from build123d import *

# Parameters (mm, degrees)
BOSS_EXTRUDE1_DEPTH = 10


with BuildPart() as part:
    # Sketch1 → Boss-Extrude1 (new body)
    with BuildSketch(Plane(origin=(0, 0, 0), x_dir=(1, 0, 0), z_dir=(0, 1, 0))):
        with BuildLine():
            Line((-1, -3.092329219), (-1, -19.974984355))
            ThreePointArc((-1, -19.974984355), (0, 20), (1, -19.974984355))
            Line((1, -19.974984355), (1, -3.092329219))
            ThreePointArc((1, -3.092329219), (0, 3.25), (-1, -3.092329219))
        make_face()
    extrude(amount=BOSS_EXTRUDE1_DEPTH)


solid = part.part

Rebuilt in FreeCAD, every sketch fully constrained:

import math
import FreeCAD as App
import Part
import Sketcher
from FreeCAD import Vector

doc = App.newDocument("Part")
body = doc.addObject("PartDesign::Body", "Body")

sketch1 = body.newObject("Sketcher::SketchObject", "Sketch")
sketch1.AttachmentSupport = (doc.getObject("XZ_Plane"), [""])
sketch1.MapMode = "FlatFace"
sketch1.addGeometry(Part.LineSegment(Vector(-1, 20, 0), Vector(-1, 3.1, 0)), False)
sketch1.addGeometry(Part.ArcOfCircle(Part.Circle(Vector(0, 0, 0), Vector(0, 0, 1), 3.2), math.radians(108), math.radians(432)), False)
sketch1.addGeometry(Part.LineSegment(Vector(1, 3.1, 0), Vector(1, 20, 0)), False)
sketch1.addGeometry(Part.ArcOfCircle(Part.Circle(Vector(0, 0, 0), Vector(0, 0, 1), 20), math.radians(93), math.radians(447)), False)
sketch1.addConstraint(Sketcher.Constraint("Coincident", 0, 2, 1, 1))
sketch1.addConstraint(Sketcher.Constraint("Coincident", 1, 2, 2, 1))
sketch1.addConstraint(Sketcher.Constraint("Coincident", 2, 2, 3, 2))
sketch1.addConstraint(Sketcher.Constraint("Coincident", 3, 1, 0, 1))
sketch1.addConstraint(Sketcher.Constraint("Vertical", 0))
sketch1.addConstraint(Sketcher.Constraint("Vertical", 2))
sketch1.addConstraint(Sketcher.Constraint("Coincident", 1, 3, -1, 1))
sketch1.addConstraint(Sketcher.Constraint("Coincident", 3, 3, -1, 1))
sketch1.addConstraint(Sketcher.Constraint("Horizontal", 0, 2, 1, 2))
sketch1.addConstraint(Sketcher.Constraint("Radius", 3, 20.0))
sketch1.addConstraint(Sketcher.Constraint("Radius", 1, 3.25))
sketch1.addConstraint(Sketcher.Constraint("DistanceX", 0, 2, -1, 1, 1.0))
pad1 = body.newObject("PartDesign::Pad", "Pad")
pad1.Profile = sketch1
pad1.Length = 10
pad1.Reversed = True

doc.recompute()
